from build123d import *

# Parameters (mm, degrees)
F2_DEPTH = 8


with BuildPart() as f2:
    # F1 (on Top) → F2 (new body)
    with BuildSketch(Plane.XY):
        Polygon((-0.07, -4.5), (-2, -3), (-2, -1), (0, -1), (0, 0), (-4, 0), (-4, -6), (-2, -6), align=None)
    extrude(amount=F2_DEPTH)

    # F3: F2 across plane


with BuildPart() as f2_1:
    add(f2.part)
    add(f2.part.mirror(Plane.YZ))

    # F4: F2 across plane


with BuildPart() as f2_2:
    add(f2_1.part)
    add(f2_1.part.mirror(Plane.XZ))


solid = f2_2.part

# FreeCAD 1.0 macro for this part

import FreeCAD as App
import Part
import Sketcher

doc = App.newDocument("Part")
params = doc.addObject("Spreadsheet::Sheet", "Params")
for row, (alias, value) in enumerate([
    ("sketch1_width", "2 mm"),
    ("sketch1_height", "1 mm"),
    ("sketch1_height2", "6 mm"),
    ("pad1_length", "8 mm"),
], start=1):
    params.set(f"A{row}", alias)
    params.set(f"B{row}", "=" + value)
    params.setAlias(f"B{row}", alias)

body = doc.addObject("PartDesign::Body", "Body")

sketch1 = body.newObject("Sketcher::SketchObject", "Sketch")
sketch1.AttachmentSupport = (doc.getObject("XY_Plane"), [""])
sketch1.MapMode = "FlatFace"
sketch1.addGeometry([
    Part.LineSegment(App.Vector(-0.07, -4.5, 0), App.Vector(-2, -3, 0)),
    Part.LineSegment(App.Vector(-2, -3, 0), App.Vector(-2, -1, 0)),
    Part.LineSegment(App.Vector(-2, -1, 0), App.Vector(0, -1, 0)),
    Part.LineSegment(App.Vector(0, -1, 0), App.Vector(0, 0, 0)),
    Part.LineSegment(App.Vector(0, 0, 0), App.Vector(-4, 0, 0)),
    Part.LineSegment(App.Vector(-4, 0, 0), App.Vector(-4, -6, 0)),
    Part.LineSegment(App.Vector(-4, -6, 0), App.Vector(-2, -6, 0)),
    Part.LineSegment(App.Vector(-2, -6, 0), App.Vector(-0.07, -4.5, 0)),
], False)
sketch1.addConstraint([
    Sketcher.Constraint("Coincident", 0, 2, 1, 1),
    Sketcher.Constraint("Coincident", 1, 2, 2, 1),
    Sketcher.Constraint("Coincident", 2, 2, 3, 1),
    Sketcher.Constraint("Coincident", 3, 2, 4, 1),
    Sketcher.Constraint("Coincident", 4, 2, 5, 1),
    Sketcher.Constraint("Coincident", 5, 2, 6, 1),
    Sketcher.Constraint("Coincident", 6, 2, 7, 1),
    Sketcher.Constraint("Coincident", 7, 2, 0, 1),
    Sketcher.Constraint("Vertical", 1),
    Sketcher.Constraint("Horizontal", 2),
    Sketcher.Constraint("Vertical", 3),
    Sketcher.Constraint("Horizontal", 4),
    Sketcher.Constraint("Vertical", 5),
    Sketcher.Constraint("Horizontal", 6),
    Sketcher.Constraint("Coincident", 3, 2, -1, 1),
    Sketcher.Constraint("Vertical", 1, 2, 6, 2),
    Sketcher.Constraint("Equal", 2, 6),
    Sketcher.Constraint("Equal", 6, 1),
    Sketcher.Constraint("Equal", 0, 7),
    Sketcher.Constraint("DistanceX", 2, 1, 2, 2, 2.0),
    Sketcher.Constraint("DistanceY", 3, 1, 3, 2, 1.0),
    Sketcher.Constraint("DistanceY", 5, 2, 5, 1, 6.0),
    Sketcher.Constraint("DistanceX", 7, 2, -1, 1, 0.07),
])
sketch1.setExpression("Constraints[19]", "Params.sketch1_width")
sketch1.setExpression("Constraints[20]", "Params.sketch1_height")
sketch1.setExpression("Constraints[21]", "Params.sketch1_height2")
pad1 = body.newObject("PartDesign::Pad", "Pad")
pad1.Profile = sketch1
pad1.setExpression("Length", "Params.pad1_length")
body2 = doc.addObject("PartDesign::Body", "Body001")
doc.recompute()

body2.BaseFeature = body
doc.recompute()

mirroring = doc.addObject("Part::Mirroring", "Mirroring")
mirroring.Source = body
mirroring.Base = App.Vector(0, 0, 0)
mirroring.Normal = App.Vector(1, 0, 0)
body3 = doc.addObject("PartDesign::Body", "Body002")
body3.BaseFeature = mirroring
boolean = body2.newObject("PartDesign::Boolean", "Boolean")
boolean.Type = "Fuse"
boolean.addObjects([body3])
doc.recompute()
body4 = doc.addObject("PartDesign::Body", "Body003")
doc.recompute()

body4.BaseFeature = body2
doc.recompute()

mirroring2 = doc.addObject("Part::Mirroring", "Mirroring001")
mirroring2.Source = body2
mirroring2.Base = App.Vector(0, 0, 0)
mirroring2.Normal = App.Vector(0, -1, 0)
body5 = doc.addObject("PartDesign::Body", "Body004")
body5.BaseFeature = mirroring2
boolean2 = body4.newObject("PartDesign::Boolean", "Boolean001")
boolean2.Type = "Fuse"
boolean2.addObjects([body5])
doc.recompute()
mirroring.Visibility = False
mirroring2.Visibility = False

doc.recompute()
